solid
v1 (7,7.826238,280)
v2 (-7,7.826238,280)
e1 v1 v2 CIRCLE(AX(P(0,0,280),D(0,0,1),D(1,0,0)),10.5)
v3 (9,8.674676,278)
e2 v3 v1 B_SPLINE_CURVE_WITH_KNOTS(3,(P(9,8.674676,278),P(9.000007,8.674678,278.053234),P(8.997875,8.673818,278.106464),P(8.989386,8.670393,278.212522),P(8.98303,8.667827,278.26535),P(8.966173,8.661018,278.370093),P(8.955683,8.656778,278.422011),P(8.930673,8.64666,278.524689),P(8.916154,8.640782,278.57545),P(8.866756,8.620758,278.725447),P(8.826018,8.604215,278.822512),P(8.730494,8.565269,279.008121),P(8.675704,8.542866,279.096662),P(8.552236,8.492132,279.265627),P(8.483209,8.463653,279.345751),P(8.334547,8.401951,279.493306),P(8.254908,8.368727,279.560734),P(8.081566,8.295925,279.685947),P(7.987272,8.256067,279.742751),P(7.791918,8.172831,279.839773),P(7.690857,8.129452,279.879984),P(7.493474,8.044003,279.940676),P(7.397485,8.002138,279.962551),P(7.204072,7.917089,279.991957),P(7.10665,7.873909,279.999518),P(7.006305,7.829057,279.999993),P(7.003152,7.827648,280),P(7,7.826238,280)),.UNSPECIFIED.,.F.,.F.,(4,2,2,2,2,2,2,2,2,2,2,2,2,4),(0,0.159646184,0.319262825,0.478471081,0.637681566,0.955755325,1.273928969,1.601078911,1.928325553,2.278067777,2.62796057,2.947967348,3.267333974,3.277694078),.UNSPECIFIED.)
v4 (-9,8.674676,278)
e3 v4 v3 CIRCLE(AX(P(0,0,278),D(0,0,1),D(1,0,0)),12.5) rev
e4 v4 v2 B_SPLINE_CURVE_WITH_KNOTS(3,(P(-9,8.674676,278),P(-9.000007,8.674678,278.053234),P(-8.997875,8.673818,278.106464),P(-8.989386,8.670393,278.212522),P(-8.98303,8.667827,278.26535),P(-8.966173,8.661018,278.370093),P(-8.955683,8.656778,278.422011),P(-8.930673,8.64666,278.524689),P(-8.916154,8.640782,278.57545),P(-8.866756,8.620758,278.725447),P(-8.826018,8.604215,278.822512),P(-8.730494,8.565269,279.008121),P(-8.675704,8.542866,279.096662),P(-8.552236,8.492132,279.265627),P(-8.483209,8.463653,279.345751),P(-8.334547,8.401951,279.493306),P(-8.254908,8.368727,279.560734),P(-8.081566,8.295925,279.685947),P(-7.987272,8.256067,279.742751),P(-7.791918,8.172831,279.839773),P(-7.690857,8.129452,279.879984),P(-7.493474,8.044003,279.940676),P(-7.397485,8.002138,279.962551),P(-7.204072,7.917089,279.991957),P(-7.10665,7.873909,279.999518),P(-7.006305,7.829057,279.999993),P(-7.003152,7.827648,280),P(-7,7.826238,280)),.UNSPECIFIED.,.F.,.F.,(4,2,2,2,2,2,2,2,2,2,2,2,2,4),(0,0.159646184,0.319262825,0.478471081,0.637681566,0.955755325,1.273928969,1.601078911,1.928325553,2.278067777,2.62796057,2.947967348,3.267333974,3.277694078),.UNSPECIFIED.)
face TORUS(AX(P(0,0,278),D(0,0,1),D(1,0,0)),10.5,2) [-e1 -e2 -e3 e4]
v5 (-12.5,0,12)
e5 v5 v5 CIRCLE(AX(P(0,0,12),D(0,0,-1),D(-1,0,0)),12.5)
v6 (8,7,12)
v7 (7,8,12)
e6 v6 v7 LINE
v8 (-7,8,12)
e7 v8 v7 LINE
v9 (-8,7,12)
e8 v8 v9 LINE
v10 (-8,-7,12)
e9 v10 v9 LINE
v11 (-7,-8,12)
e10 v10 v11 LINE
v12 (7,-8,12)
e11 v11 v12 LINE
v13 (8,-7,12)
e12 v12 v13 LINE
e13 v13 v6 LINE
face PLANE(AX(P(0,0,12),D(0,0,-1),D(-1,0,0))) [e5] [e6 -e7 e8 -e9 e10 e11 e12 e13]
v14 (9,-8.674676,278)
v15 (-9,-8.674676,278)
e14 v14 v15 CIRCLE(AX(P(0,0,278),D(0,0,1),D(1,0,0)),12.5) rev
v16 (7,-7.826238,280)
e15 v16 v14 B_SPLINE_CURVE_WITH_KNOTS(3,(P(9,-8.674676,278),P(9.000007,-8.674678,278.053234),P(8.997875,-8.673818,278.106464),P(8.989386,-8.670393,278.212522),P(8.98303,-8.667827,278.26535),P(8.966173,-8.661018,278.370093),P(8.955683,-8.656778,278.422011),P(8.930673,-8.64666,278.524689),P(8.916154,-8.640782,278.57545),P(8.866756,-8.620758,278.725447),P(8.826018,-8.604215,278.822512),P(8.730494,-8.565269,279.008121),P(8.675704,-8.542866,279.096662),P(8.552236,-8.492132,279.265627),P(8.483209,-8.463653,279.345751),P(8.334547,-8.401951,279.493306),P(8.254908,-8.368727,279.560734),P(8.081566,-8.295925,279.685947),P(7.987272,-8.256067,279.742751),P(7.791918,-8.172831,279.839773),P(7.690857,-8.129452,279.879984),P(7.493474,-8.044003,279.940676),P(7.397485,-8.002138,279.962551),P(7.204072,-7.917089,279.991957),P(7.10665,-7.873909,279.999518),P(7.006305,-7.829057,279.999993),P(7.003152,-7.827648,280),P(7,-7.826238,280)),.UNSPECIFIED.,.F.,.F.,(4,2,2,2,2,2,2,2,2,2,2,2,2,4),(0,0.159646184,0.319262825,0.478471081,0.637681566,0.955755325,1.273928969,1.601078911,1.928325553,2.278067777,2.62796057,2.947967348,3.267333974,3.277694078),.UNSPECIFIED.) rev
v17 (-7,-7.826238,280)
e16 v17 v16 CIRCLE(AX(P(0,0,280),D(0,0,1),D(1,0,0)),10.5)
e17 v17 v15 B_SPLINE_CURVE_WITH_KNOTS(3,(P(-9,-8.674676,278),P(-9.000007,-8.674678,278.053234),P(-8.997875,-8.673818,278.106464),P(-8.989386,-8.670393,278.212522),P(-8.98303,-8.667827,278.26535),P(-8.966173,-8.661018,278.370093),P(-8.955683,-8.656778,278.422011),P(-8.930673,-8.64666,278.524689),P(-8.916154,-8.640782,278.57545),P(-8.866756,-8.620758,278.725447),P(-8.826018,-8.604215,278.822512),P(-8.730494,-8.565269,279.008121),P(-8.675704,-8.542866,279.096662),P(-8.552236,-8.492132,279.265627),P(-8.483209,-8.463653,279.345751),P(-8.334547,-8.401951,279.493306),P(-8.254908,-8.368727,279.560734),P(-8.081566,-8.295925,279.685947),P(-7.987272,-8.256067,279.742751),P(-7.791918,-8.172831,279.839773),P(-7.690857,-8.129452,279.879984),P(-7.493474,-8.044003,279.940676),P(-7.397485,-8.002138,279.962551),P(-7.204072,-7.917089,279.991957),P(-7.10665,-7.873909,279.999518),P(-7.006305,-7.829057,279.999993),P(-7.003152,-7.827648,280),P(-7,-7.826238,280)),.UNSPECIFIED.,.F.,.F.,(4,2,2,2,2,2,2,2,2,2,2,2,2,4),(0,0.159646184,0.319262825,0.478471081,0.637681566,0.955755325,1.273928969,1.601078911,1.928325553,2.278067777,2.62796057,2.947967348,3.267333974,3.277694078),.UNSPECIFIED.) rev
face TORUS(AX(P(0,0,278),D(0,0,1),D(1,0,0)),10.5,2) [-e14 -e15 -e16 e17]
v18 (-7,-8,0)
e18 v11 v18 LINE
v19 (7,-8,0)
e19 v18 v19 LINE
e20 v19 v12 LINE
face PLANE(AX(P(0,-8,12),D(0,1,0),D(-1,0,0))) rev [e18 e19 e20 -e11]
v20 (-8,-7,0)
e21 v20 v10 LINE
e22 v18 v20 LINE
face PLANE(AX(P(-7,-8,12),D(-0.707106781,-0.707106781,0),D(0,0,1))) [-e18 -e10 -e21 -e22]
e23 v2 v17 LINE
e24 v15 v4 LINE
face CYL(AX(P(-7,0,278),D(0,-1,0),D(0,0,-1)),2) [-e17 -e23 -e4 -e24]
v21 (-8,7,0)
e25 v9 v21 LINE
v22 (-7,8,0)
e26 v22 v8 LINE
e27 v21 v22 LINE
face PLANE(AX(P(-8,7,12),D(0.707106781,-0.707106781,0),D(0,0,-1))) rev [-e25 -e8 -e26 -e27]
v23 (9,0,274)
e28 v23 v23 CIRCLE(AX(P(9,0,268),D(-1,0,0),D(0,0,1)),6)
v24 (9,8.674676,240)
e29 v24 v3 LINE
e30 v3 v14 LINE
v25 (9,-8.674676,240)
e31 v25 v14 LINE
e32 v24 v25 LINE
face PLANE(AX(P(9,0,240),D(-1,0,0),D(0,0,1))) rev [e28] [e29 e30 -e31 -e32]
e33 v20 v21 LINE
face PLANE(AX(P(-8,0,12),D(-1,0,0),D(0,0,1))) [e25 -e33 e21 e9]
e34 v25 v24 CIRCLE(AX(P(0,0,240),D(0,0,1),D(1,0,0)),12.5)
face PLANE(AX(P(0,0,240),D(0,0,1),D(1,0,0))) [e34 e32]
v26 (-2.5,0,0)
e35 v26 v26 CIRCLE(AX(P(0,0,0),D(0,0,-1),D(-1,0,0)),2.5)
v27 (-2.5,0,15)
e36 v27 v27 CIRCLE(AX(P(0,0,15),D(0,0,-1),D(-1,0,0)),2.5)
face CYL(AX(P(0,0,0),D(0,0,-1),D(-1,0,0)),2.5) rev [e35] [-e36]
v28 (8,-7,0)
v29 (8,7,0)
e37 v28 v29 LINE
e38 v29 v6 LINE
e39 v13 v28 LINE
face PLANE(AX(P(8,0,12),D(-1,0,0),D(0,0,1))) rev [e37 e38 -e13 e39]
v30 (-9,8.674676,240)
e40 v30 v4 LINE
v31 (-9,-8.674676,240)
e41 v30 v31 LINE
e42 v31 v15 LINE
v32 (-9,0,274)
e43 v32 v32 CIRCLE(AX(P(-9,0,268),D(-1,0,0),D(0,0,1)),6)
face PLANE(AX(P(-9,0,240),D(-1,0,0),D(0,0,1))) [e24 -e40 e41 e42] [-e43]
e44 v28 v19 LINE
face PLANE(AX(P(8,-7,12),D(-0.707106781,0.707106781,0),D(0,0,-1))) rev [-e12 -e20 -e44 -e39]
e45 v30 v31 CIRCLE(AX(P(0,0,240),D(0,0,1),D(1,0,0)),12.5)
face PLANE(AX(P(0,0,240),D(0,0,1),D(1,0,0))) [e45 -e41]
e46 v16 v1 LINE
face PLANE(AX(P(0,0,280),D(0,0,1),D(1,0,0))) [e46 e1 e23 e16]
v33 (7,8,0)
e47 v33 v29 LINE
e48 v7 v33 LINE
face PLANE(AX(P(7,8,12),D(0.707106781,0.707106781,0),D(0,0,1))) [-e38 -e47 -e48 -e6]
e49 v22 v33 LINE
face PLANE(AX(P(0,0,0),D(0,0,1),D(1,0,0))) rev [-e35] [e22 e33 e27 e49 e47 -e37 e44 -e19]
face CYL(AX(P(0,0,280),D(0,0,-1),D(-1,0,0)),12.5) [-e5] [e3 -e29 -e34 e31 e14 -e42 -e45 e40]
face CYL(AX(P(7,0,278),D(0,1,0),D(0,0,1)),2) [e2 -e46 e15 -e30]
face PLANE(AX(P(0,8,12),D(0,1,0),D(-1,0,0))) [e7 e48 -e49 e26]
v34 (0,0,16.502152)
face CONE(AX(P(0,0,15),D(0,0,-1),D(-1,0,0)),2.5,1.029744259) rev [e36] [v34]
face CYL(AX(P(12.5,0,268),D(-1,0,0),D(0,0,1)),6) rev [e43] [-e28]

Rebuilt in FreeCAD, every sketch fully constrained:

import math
import FreeCAD as App
import Part
import Sketcher
Q = App.Units.Quantity


def edges_at(feature, points):
    """Names of the edges that pass closest to the given points."""
    edges = feature.Shape.Edges
    near = lambda p: min(range(len(edges)), key=lambda i: edges[i].distToShape(Part.Vertex(*p))[0])
    return sorted({f"Edge{near(p) + 1}" for p in points})


def add_polygon(sketch, points):
    """Adds a closed chain of lines whose ends are joined by coincident constraints."""
    first, n = sketch.GeometryCount, len(points)
    for a, b in zip(points, points[1:] + points[:1]):
        sketch.addGeometry(Part.LineSegment(App.Vector(*a, 0), App.Vector(*b, 0)), False)
    for i in range(n):
        sketch.addConstraint(Sketcher.Constraint("Coincident", first + i, 2, first + (i + 1) % n, 1))

doc = App.newDocument("Part")
body = doc.addObject("PartDesign::Body", "Body")

# Sketch on XY plane
sketch1 = body.newObject("Sketcher::SketchObject", "Sketch")
sketch1.AttachmentSupport = (doc.getObject("XY_Plane"), [""])
sketch1.MapMode = "FlatFace"
sketch1.addGeometry(Part.Circle(App.Vector(0, 0, 0), App.Vector(0, 0, 1), 12), False)
sketch1.addConstraint([
    Sketcher.Constraint("Coincident", 0, 3, -1, 1),
    Sketcher.Constraint("Diameter", 0, Q("25 mm")),
])
pad1 = body.newObject("PartDesign::Pad", "Pad")
pad1.Profile = sketch1
pad1.Length = 280

# Sketch on XY plane
sketch2 = body.newObject("Sketcher::SketchObject", "Sketch001")
sketch2.AttachmentSupport = (doc.getObject("XY_Plane"), [""])
sketch2.MapMode = "FlatFace"
sketch2.AttachmentOffset = App.Placement(App.Vector(0, 0, 240), App.Rotation())
sketch2.addGeometry([
    Part.LineSegment(App.Vector(-9, -9, 0), App.Vector(-9, 9, 0)),  # 0
    Part.ArcOfCircle(Part.Circle(App.Vector(0, 0, 0), App.Vector(0, 0, 1), 12), math.radians(136), math.radians(224)),  # 1
    Part.ArcOfCircle(Part.Circle(App.Vector(0, 0, 0), App.Vector(0, 0, 1), 13), math.radians(0), math.radians(44)),  # 2
    Part.LineSegment(App.Vector(9, 9, 0), App.Vector(9, -9, 0)),  # 3
    Part.ArcOfCircle(Part.Circle(App.Vector(0, 0, 0), App.Vector(0, 0, 1), 13), math.radians(-44), math.radians(0)),  # 4
], False)
sketch2.addConstraint([
    Sketcher.Constraint("Coincident", 0, 1, 1, 2),
    Sketcher.Constraint("Coincident", 1, 1, 0, 2),
    Sketcher.Constraint("Coincident", 2, 2, 3, 1),
    Sketcher.Constraint("Coincident", 3, 2, 4, 1),
    Sketcher.Constraint("Tangent", 4, 2, 2, 1),
    Sketcher.Constraint("Vertical", 0),
    Sketcher.Constraint("Vertical", 3),
    Sketcher.Constraint("Coincident", 1, 3, -1, 1),
    Sketcher.Constraint("Coincident", 2, 3, -1, 1),
    Sketcher.Constraint("Equal", 1, 2),
    Sketcher.Constraint("Equal", 2, 4),
    Sketcher.Constraint("PointOnObject", 4, 2, -1),
    Sketcher.Constraint("Horizontal", 1, 1, 2, 2),
    Sketcher.Constraint("Radius", 1, Q("12.5 mm")),
    Sketcher.Constraint("DistanceX", 0, 1, -1, 1, Q("9 mm")),
])
pocket1 = body.newObject("PartDesign::Pocket", "Pocket")
pocket1.Profile = sketch2
pocket1.Length = 40
pocket1.Reversed = True

# Sketch on YZ plane
sketch3 = body.newObject("Sketcher::SketchObject", "Sketch002")
sketch3.AttachmentSupport = (doc.getObject("YZ_Plane"), [""])
sketch3.MapMode = "FlatFace"
sketch3.AttachmentOffset = App.Placement(App.Vector(0, 0, -9), App.Rotation())
sketch3.addGeometry(Part.Circle(App.Vector(0, 268, 0), App.Vector(0, 0, 1), 6), False)
sketch3.addConstraint([
    Sketcher.Constraint("PointOnObject", 0, 3, -2),
    Sketcher.Constraint("Diameter", 0, Q("12 mm")),
    Sketcher.Constraint("DistanceY", -1, 1, 0, 3, Q("268 mm")),
])
pocket2 = body.newObject("PartDesign::Pocket", "Pocket001")
pocket2.Profile = sketch3
pocket2.Type = "ThroughAll"
pocket2.Reversed = True
doc.recompute()

fillet = body.newObject("PartDesign::Fillet", "Fillet")
fillet.Base = (pocket2, edges_at(pocket2, [
    (0, 12.5, 280),
    (9, 0, 280),
    (0, -12.5, 280),
    (-9, 0, 280),
]))
fillet.Radius = 2

# Sketch on XY plane
sketch4 = body.newObject("Sketcher::SketchObject", "Sketch003")
sketch4.AttachmentSupport = (doc.getObject("XY_Plane"), [""])
sketch4.MapMode = "FlatFace"
sketch4.addGeometry(Part.Circle(App.Vector(0, 0, 0), App.Vector(0, 0, 1), 12), False)  # 0
add_polygon(sketch4, [(-8, -8), (8, -8), (8, 8), (-8, 8)])  # lines 1-4
sketch4.addConstraint([
    Sketcher.Constraint("Horizontal", 1),
    Sketcher.Constraint("Vertical", 2),
    Sketcher.Constraint("Horizontal", 3),
    Sketcher.Constraint("Vertical", 4),
    Sketcher.Constraint("Coincident", 0, 3, -1, 1),
    Sketcher.Constraint("Symmetric", 1, 2, 3, 2, -1, 1),
    Sketcher.Constraint("Equal", 3, 2),
    Sketcher.Constraint("Diameter", 0, Q("25 mm")),
    Sketcher.Constraint("DistanceX", 1, 1, 1, 2, Q("16 mm")),
])
pocket3 = body.newObject("PartDesign::Pocket", "Pocket002")
pocket3.Profile = sketch4
pocket3.Length = 12
pocket3.Reversed = True

# Sketch on XY plane
sketch5 = body.newObject("Sketcher::SketchObject", "Sketch004")
sketch5.AttachmentSupport = (doc.getObject("XY_Plane"), [""])
sketch5.MapMode = "FlatFace"
sketch5.addGeometry(Part.Circle(App.Vector(0, 0, 0), App.Vector(0, 0, 1), 2.5), False)
sketch5.addConstraint([
    Sketcher.Constraint("Coincident", 0, 3, -1, 1),
    Sketcher.Constraint("Diameter", 0, Q("5 mm")),
])
doc.recompute()
hole = body.newObject("PartDesign::Hole", "Hole")
hole.Profile = sketch5
hole.ThreadType = "None"
hole.Diameter = 5
hole.DepthType = "Dimension"
hole.Depth = 15
hole.DrillPoint = "Angled"
hole.DrillPointAngle = 118
hole.Reversed = True
doc.recompute()

chamfer = body.newObject("PartDesign::Chamfer", "Chamfer")
chamfer.Base = (hole, edges_at(hole, [
    (8, -8, 6),
    (-8, -8, 6),
    (-8, 8, 6),
    (8, 8, 6),
]))
chamfer.Size = 1

doc.recompute()
